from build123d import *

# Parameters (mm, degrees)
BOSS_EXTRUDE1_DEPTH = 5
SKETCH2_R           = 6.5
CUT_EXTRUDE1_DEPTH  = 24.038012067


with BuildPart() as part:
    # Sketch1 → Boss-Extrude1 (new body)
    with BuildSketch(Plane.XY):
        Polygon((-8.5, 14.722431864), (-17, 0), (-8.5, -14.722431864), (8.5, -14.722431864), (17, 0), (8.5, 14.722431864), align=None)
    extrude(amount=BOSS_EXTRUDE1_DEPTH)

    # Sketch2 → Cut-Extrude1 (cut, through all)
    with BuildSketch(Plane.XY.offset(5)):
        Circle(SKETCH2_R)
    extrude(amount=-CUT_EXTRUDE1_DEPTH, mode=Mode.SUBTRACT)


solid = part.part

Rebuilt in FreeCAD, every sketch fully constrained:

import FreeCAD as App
import Part
import Sketcher
Q = App.Units.Quantity


def add_polygon(sketch, points):
    """Adds a closed chain of lines whose ends are joined by coincident constraints."""
    first, n = sketch.GeometryCount, len(points)
    for a, b in zip(points, points[1:] + points[:1]):
        sketch.addGeometry(Part.LineSegment(App.Vector(*a, 0), App.Vector(*b, 0)), False)
    for i in range(n):
        sketch.addConstraint(Sketcher.Constraint("Coincident", first + i, 2, first + (i + 1) % n, 1))

doc = App.newDocument("Part")
body = doc.addObject("PartDesign::Body", "Body")

# Sketch on XY plane
sketch1 = body.newObject("Sketcher::SketchObject", "Sketch")
sketch1.AttachmentSupport = (doc.getObject("XY_Plane"), [""])
sketch1.MapMode = "FlatFace"
add_polygon(sketch1, [(-8, 15), (-17, 0), (-8, -15), (8, -15), (17, 0), (8, 15)])  # lines 0-5
sketch1.addConstraint([
    Sketcher.Constraint("Horizontal", 2),
    Sketcher.Constraint("Horizontal", 5),
    Sketcher.Constraint("Symmetric", 0, 2, 3, 2, -1, 1),
    Sketcher.Constraint("Symmetric", 1, 2, 4, 2, -1, 1),
    Sketcher.Constraint("PointOnObject", 0, 2, -1),
    Sketcher.Constraint("Parallel", 0, 3),
    Sketcher.Constraint("Vertical", 2, 2, 4, 2),
    Sketcher.Constraint("DistanceX", 2, 1, 2, 2, Q("17 mm")),
    Sketcher.Constraint("Angle", 0, Q("-120 deg")),
    Sketcher.Constraint("Distance", 0, Q("17 mm")),
])
pad1 = body.newObject("PartDesign::Pad", "Pad")
pad1.Profile = sketch1
pad1.Length = 5

# Sketch on XY plane
sketch2 = body.newObject("Sketcher::SketchObject", "Sketch001")
sketch2.AttachmentSupport = (doc.getObject("XY_Plane"), [""])
sketch2.MapMode = "FlatFace"
sketch2.AttachmentOffset = App.Placement(App.Vector(0, 0, 5), App.Rotation())
sketch2.addGeometry(Part.Circle(App.Vector(0, 0, 0), App.Vector(0, 0, 1), 6), False)
sketch2.addConstraint([
    Sketcher.Constraint("Coincident", 0, 3, -1, 1),
    Sketcher.Constraint("Diameter", 0, Q("13 mm")),
])
pocket1 = body.newObject("PartDesign::Pocket", "Pocket")
pocket1.Profile = sketch2
pocket1.Type = "ThroughAll"

doc.recompute()
